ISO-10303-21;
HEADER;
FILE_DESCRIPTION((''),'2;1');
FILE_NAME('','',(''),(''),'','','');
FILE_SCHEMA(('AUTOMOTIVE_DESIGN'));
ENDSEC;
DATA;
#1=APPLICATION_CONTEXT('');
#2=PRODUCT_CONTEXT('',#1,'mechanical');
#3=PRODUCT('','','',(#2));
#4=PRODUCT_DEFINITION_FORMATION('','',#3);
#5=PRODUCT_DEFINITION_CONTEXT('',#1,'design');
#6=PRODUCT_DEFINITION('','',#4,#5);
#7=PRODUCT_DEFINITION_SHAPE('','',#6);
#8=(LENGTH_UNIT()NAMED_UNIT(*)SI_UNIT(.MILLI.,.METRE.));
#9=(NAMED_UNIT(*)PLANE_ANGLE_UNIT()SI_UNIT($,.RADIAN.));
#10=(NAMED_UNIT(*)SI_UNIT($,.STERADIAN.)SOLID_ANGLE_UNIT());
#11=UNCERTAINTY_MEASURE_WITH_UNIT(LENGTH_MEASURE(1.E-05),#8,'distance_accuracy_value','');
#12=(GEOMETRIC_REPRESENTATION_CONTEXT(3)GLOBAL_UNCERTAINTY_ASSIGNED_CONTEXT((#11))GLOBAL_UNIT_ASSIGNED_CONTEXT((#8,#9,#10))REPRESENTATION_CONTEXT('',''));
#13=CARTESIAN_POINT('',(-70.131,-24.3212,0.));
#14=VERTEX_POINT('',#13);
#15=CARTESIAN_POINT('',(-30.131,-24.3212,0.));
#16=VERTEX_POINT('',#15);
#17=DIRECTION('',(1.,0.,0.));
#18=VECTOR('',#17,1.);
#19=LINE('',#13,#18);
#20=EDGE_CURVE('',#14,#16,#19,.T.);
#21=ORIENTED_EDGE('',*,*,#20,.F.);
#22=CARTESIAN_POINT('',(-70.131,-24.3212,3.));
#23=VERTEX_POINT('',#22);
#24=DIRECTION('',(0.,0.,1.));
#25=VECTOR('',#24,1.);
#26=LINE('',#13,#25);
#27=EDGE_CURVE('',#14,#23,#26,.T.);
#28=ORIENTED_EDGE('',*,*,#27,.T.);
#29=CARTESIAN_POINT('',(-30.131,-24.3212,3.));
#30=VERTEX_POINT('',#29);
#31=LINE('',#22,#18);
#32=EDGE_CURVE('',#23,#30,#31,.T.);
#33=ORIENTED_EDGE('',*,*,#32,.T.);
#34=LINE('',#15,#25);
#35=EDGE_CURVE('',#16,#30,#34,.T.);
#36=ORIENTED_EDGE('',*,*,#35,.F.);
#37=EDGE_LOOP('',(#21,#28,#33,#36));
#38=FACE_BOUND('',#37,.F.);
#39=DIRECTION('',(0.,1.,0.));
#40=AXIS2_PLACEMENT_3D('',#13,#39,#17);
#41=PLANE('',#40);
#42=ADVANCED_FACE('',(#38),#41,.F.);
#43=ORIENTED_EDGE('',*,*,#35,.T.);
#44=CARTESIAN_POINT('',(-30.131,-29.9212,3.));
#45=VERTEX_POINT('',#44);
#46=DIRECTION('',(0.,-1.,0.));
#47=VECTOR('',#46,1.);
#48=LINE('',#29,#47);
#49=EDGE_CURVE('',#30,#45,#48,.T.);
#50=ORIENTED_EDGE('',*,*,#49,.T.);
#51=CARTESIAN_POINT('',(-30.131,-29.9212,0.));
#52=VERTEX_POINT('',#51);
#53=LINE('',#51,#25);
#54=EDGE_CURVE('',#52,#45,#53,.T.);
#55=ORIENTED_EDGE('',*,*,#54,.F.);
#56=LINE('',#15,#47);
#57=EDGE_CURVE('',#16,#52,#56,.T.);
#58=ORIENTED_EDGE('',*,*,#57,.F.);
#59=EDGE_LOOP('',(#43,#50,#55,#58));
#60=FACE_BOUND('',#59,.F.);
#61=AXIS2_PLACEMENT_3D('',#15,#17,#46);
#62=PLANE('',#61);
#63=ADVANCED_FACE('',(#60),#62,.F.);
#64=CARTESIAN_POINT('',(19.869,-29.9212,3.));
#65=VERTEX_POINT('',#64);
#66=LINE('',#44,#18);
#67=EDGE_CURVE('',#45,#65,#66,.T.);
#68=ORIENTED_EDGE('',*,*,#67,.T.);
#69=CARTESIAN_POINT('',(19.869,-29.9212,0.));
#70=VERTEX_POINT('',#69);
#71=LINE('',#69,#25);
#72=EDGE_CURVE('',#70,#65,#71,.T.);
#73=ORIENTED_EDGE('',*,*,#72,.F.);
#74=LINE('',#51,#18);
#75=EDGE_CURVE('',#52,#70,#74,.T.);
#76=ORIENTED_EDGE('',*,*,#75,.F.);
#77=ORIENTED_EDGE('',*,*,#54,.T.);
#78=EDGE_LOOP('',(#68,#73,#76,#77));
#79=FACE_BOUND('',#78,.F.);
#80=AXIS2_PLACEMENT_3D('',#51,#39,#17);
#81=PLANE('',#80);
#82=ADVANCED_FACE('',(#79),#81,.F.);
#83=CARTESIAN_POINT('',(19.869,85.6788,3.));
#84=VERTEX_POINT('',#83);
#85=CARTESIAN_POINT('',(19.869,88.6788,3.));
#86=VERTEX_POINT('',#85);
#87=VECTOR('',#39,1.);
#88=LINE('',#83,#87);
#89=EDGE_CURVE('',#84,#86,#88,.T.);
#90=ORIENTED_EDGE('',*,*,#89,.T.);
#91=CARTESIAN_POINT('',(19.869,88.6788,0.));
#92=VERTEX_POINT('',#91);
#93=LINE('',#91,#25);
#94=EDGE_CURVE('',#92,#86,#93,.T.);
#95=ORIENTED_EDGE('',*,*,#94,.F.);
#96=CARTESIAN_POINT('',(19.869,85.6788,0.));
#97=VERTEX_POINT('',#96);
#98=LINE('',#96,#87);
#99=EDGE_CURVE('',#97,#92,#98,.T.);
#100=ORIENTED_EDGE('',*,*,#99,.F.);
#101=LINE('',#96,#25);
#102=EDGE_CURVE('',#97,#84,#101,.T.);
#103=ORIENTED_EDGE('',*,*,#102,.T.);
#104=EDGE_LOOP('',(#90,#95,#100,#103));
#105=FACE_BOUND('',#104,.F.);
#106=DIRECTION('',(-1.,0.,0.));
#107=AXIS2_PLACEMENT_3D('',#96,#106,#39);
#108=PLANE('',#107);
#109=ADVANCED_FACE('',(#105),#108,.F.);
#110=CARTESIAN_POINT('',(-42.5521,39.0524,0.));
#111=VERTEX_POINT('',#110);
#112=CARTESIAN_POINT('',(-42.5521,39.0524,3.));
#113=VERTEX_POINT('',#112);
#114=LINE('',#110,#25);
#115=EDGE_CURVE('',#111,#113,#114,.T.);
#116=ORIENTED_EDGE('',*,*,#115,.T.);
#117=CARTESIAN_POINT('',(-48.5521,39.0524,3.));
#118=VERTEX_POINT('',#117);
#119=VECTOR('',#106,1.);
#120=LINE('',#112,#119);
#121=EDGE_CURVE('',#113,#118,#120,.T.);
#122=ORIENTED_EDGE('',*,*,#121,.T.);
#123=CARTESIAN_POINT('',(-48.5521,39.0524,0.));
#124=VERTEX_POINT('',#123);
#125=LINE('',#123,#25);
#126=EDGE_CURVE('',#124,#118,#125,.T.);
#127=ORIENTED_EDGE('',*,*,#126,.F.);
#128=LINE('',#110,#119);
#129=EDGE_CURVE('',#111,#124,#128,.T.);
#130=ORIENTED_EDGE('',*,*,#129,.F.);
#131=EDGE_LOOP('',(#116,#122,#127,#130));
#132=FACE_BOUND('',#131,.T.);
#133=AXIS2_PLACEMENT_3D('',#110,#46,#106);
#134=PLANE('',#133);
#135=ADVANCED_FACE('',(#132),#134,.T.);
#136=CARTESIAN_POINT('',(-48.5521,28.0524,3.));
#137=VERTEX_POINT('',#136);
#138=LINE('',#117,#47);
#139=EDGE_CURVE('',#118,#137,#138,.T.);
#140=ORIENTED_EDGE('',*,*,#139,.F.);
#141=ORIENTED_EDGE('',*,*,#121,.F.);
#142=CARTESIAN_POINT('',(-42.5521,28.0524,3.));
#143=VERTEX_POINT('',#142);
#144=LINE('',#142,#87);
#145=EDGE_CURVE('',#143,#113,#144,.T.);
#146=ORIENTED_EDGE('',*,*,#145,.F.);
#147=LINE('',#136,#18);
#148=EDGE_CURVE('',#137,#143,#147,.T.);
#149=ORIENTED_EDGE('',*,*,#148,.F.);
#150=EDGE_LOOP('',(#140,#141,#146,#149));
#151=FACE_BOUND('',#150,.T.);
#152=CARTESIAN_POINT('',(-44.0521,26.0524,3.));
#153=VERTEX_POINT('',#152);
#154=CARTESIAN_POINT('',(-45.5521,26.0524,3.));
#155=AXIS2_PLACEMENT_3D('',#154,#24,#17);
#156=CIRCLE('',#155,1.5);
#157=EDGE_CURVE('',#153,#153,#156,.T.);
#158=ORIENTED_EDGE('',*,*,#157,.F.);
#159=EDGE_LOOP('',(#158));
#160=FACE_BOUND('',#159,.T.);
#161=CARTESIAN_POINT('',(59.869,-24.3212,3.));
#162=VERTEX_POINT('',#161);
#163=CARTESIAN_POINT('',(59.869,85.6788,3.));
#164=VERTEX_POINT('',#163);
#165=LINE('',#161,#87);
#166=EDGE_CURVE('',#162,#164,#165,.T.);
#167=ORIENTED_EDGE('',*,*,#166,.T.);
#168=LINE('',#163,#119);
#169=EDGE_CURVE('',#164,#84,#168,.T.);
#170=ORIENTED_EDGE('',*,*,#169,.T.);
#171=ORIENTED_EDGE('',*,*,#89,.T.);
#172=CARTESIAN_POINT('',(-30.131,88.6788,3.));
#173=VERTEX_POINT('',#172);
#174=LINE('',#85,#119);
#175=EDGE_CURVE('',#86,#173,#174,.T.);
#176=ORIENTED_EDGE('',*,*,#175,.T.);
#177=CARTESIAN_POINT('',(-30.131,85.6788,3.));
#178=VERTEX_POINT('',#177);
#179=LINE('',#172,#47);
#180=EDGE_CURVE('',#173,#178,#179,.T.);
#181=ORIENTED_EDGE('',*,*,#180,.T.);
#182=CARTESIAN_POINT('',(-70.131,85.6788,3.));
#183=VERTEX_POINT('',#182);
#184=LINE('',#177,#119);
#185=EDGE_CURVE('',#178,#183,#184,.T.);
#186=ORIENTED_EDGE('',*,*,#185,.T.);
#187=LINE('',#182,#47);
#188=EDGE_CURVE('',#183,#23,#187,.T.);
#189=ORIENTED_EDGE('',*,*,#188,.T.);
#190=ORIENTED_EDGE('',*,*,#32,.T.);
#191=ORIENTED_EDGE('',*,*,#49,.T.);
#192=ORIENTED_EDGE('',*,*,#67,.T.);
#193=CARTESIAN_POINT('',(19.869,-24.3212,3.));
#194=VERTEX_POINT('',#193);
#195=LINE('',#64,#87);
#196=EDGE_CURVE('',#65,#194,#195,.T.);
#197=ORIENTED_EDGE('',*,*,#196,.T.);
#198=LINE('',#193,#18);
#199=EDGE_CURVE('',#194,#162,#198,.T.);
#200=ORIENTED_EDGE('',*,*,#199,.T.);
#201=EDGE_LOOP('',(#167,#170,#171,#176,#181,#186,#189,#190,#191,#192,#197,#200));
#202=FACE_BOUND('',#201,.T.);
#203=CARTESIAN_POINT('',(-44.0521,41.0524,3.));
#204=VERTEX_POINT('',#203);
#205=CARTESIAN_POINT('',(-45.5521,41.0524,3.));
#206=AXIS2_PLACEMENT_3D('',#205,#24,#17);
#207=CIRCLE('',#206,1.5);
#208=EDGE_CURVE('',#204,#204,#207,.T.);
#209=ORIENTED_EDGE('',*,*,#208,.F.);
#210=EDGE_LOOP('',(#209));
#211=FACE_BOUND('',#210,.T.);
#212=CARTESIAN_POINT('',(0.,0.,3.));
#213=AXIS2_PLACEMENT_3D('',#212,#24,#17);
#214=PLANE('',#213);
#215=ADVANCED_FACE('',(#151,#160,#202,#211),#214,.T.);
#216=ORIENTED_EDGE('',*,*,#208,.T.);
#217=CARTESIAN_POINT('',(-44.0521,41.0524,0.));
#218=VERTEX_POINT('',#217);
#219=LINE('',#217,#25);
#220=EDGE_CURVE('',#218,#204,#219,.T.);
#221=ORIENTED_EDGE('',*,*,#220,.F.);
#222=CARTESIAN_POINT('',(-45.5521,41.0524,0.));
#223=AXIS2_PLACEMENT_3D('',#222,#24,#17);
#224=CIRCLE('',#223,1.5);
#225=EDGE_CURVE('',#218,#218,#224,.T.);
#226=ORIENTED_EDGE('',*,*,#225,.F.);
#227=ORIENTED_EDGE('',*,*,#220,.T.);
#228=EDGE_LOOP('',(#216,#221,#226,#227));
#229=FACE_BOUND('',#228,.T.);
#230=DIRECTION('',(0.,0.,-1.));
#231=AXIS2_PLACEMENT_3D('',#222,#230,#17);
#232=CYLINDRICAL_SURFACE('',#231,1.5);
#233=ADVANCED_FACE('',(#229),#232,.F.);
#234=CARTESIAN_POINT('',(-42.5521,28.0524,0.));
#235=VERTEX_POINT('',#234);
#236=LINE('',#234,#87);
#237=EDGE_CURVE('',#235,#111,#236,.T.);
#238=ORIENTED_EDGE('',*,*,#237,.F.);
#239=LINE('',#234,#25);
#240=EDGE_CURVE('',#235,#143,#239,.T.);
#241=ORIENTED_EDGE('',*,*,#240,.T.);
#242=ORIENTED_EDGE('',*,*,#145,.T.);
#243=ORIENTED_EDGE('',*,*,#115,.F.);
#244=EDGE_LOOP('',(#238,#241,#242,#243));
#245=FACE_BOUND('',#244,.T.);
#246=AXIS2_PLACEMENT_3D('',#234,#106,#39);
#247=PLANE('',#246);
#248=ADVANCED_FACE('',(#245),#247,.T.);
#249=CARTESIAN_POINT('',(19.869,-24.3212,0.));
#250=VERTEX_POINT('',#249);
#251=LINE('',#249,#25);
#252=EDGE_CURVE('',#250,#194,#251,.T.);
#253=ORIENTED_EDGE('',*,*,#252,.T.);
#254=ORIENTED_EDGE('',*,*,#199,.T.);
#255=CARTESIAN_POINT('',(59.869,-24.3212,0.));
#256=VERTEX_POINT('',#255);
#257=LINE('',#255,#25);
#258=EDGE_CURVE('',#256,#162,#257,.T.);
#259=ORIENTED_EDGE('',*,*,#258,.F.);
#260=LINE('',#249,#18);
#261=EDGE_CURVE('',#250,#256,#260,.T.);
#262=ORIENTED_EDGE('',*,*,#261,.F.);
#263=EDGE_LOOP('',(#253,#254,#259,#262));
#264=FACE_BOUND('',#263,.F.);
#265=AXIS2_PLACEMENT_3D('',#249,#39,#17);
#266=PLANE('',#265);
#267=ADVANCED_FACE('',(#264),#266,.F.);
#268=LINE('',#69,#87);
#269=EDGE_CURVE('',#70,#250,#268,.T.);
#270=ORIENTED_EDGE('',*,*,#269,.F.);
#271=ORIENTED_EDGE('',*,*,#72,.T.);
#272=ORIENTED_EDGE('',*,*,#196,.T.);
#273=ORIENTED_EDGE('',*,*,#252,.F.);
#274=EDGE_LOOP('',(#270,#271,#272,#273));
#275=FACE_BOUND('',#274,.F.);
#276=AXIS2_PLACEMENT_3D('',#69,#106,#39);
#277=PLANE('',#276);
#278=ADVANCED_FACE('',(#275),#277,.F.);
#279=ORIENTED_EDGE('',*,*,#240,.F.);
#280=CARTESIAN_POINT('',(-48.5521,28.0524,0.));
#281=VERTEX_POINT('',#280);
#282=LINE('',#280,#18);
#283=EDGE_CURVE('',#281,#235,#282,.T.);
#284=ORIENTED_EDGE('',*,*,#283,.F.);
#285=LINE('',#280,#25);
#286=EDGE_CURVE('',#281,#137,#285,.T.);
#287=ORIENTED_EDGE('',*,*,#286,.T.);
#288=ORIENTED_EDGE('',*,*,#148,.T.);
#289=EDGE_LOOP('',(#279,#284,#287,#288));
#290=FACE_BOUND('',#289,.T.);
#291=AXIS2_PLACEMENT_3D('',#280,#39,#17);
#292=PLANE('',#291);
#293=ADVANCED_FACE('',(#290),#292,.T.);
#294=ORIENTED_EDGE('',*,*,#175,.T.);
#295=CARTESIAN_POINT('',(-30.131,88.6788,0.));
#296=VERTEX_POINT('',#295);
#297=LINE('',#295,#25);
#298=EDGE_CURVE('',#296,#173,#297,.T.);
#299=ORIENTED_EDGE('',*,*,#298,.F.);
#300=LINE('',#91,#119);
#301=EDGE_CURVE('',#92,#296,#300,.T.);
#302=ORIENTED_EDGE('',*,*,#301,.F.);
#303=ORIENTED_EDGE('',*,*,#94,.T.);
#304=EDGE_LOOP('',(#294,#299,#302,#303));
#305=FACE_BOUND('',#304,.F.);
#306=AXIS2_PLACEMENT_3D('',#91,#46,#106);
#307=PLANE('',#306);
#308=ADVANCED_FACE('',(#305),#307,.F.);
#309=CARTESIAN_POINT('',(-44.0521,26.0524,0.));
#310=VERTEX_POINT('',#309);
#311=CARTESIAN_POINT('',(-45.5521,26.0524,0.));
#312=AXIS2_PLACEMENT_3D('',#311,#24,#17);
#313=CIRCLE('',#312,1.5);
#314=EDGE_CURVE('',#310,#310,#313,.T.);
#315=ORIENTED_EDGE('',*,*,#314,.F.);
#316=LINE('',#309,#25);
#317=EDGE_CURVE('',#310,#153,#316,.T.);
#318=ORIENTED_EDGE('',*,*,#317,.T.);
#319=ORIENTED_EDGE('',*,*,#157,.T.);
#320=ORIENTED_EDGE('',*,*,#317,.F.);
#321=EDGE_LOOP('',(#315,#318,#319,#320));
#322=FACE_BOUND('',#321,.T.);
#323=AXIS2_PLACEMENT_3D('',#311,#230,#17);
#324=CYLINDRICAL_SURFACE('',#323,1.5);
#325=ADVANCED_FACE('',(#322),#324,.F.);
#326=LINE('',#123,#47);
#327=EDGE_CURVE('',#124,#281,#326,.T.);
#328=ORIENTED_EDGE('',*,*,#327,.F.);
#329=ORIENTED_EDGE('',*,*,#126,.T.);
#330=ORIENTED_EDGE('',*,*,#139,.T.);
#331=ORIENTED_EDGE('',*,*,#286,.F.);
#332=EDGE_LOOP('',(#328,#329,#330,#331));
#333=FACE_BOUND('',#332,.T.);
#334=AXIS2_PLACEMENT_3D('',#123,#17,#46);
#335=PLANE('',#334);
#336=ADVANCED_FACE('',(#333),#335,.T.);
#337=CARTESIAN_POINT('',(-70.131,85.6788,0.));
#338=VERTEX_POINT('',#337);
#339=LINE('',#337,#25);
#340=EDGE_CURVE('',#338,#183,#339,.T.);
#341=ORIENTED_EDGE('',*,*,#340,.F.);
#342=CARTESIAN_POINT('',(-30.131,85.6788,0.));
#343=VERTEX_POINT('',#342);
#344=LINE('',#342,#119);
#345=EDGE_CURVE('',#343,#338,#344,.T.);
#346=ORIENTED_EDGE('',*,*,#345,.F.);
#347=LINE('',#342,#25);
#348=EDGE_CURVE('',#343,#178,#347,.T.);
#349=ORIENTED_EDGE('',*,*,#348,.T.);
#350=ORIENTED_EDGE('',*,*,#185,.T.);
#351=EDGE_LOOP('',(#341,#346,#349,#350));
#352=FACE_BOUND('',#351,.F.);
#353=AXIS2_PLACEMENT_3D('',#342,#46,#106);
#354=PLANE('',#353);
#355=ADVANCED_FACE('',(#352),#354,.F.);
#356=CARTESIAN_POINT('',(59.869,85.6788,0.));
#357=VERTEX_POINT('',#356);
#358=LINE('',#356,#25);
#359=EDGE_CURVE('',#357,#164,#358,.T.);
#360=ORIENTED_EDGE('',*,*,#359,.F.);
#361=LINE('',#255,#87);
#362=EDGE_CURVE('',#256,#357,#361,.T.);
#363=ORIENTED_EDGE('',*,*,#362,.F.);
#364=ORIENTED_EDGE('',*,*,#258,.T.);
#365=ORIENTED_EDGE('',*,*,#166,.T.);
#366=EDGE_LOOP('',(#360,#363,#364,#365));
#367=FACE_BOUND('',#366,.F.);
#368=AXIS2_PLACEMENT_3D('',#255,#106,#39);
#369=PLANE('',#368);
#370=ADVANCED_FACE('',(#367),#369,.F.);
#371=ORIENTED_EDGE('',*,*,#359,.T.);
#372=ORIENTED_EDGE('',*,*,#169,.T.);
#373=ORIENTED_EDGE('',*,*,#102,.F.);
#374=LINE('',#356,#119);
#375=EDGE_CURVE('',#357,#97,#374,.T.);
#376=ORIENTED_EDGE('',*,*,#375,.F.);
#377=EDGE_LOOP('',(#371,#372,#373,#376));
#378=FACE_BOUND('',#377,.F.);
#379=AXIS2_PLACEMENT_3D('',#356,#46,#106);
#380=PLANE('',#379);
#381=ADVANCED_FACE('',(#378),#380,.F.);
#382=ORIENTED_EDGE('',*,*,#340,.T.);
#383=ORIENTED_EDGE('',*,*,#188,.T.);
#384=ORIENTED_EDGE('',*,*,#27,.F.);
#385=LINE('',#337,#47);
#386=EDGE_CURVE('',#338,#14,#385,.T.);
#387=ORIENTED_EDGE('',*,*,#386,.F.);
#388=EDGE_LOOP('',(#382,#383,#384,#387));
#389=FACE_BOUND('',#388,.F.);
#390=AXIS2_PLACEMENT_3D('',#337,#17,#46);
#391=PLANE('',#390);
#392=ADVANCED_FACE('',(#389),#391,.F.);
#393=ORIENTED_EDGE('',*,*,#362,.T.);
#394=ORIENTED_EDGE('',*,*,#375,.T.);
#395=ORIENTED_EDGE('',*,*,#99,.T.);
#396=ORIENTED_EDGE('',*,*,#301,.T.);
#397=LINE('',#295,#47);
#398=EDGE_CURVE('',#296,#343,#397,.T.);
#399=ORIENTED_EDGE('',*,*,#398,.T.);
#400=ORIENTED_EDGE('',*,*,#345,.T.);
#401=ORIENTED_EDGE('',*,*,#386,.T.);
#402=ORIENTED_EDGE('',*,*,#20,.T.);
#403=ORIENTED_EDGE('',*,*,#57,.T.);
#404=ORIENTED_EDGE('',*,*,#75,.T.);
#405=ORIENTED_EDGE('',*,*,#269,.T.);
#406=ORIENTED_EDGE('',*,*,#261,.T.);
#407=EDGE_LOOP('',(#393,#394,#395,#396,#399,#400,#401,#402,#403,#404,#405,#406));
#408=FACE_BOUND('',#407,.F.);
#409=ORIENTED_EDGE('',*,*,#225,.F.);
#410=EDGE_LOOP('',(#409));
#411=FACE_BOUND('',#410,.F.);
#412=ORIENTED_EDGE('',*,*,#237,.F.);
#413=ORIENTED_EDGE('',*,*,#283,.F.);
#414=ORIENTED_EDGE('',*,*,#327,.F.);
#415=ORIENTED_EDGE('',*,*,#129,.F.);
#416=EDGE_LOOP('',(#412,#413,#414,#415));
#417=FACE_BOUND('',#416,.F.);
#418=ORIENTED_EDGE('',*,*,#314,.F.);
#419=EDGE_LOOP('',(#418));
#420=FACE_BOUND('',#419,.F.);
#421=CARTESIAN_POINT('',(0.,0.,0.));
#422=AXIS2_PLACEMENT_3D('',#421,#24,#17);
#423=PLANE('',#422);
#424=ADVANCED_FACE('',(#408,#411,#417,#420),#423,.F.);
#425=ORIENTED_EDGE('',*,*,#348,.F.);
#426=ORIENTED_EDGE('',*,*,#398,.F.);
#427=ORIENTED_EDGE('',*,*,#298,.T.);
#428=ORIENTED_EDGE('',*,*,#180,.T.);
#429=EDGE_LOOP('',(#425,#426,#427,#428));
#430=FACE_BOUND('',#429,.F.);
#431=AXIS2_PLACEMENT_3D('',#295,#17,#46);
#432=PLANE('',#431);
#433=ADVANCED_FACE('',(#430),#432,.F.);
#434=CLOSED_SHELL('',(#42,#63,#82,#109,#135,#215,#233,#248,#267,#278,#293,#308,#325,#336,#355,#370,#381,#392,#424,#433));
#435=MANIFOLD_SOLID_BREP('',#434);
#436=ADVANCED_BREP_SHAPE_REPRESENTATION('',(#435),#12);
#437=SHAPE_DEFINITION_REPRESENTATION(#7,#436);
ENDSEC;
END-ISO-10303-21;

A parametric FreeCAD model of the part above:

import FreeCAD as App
import Part
import Sketcher

V = App.Vector


def add_polygon(sketch, points):
    """Adds a closed chain of lines whose ends are joined by coincident constraints."""
    first, n = sketch.GeometryCount, len(points)
    for a, b in zip(points, points[1:] + points[:1]):
        sketch.addGeometry(Part.LineSegment(App.Vector(*a, 0), App.Vector(*b, 0)), False)
    for i in range(n):
        sketch.addConstraint(Sketcher.Constraint("Coincident", first + i, 2, first + (i + 1) % n, 1))

doc = App.newDocument("Part")
body = doc.addObject("PartDesign::Body", "Body")

# Sketch on XY plane
sketch1 = body.newObject("Sketcher::SketchObject", "Sketch")
sketch1.AttachmentSupport = (doc.getObject("XY_Plane"), [""])
sketch1.MapMode = "FlatFace"
add_polygon(sketch1, [(-30.1, 85.7), (-70.1, 85.7), (-70.1, -24.3), (-30.1, -24.3), (-30.1, -29.9), (19.9, -29.9), (19.9, -24.3), (59.9, -24.3), (59.9, 85.7), (19.9, 85.7), (19.9, 88.7), (-30.1, 88.7)])  # lines 0-11
sketch1.addGeometry(Part.Circle(V(-45.6, 26.1, 0), V(0, 0, 1), 1.5), False)  # 12
add_polygon(sketch1, [(-48.6, 28.1), (-48.6, 39.1), (-42.6, 39.1), (-42.6, 28.1)])  # lines 13-16
sketch1.addGeometry(Part.Circle(V(-45.6, 41.1, 0), V(0, 0, 1), 1.5), False)  # 17
sketch1.addConstraint([
    Sketcher.Constraint("Horizontal", 0),
    Sketcher.Constraint("Vertical", 1),
    Sketcher.Constraint("Horizontal", 2),
    Sketcher.Constraint("Vertical", 3),
    Sketcher.Constraint("Horizontal", 4),
    Sketcher.Constraint("Vertical", 5),
    Sketcher.Constraint("Horizontal", 6),
    Sketcher.Constraint("Vertical", 7),
    Sketcher.Constraint("Horizontal", 8),
    Sketcher.Constraint("Vertical", 9),
    Sketcher.Constraint("Horizontal", 10),
    Sketcher.Constraint("Vertical", 11),
    Sketcher.Constraint("Vertical", 13),
    Sketcher.Constraint("Horizontal", 14),
    Sketcher.Constraint("Vertical", 15),
    Sketcher.Constraint("Horizontal", 16),
    Sketcher.Constraint("Equal", 12, 17),
    Sketcher.Constraint("Horizontal", 2, 2, 5, 2),
    Sketcher.Constraint("Horizontal", 0, 2, 7, 2),
    Sketcher.Constraint("Vertical", 12, 3, 17, 3),
    Sketcher.Constraint("Vertical", 5, 2, 8, 2),
    Sketcher.Constraint("Vertical", 3, 2, 10, 2),
    Sketcher.Constraint("Equal", 2, 6),
    Sketcher.Constraint("Diameter", 12, 3.0),
    Sketcher.Constraint("DistanceX", 4, 1, 4, 2, 50.0),
    Sketcher.Constraint("DistanceX", 14, 1, 14, 2, 6.0),
    Sketcher.Constraint("DistanceY", 1, 2, 1, 1, 110.0),
    Sketcher.Constraint("DistanceY", 9, 1, 9, 2, 3.0),
    Sketcher.Constraint("DistanceY", 13, 1, 13, 2, 11.0),
    Sketcher.Constraint("DistanceY", 3, 2, 3, 1, 5.6),
    Sketcher.Constraint("DistanceX", 13, 2, 17, 3, 3.0),
    Sketcher.Constraint("DistanceY", 13, 2, 17, 3, 2.0),
    Sketcher.Constraint("DistanceY", 12, 3, 15, 2, 2.0),
    Sketcher.Constraint("DistanceX", 0, 2, 0, 1, 40.0),
    Sketcher.Constraint("DistanceX", 12, 3, -1, 1, 45.552),
    Sketcher.Constraint("DistanceX", 0, 2, -1, 1, 70.131),
    Sketcher.Constraint("DistanceY", -1, 1, 12, 3, 26.0524),
    Sketcher.Constraint("DistanceY", -1, 1, 0, 2, 85.6788),
])
pad1 = body.newObject("PartDesign::Pad", "Pad")
pad1.Profile = sketch1
pad1.Length = 3

doc.recompute()
